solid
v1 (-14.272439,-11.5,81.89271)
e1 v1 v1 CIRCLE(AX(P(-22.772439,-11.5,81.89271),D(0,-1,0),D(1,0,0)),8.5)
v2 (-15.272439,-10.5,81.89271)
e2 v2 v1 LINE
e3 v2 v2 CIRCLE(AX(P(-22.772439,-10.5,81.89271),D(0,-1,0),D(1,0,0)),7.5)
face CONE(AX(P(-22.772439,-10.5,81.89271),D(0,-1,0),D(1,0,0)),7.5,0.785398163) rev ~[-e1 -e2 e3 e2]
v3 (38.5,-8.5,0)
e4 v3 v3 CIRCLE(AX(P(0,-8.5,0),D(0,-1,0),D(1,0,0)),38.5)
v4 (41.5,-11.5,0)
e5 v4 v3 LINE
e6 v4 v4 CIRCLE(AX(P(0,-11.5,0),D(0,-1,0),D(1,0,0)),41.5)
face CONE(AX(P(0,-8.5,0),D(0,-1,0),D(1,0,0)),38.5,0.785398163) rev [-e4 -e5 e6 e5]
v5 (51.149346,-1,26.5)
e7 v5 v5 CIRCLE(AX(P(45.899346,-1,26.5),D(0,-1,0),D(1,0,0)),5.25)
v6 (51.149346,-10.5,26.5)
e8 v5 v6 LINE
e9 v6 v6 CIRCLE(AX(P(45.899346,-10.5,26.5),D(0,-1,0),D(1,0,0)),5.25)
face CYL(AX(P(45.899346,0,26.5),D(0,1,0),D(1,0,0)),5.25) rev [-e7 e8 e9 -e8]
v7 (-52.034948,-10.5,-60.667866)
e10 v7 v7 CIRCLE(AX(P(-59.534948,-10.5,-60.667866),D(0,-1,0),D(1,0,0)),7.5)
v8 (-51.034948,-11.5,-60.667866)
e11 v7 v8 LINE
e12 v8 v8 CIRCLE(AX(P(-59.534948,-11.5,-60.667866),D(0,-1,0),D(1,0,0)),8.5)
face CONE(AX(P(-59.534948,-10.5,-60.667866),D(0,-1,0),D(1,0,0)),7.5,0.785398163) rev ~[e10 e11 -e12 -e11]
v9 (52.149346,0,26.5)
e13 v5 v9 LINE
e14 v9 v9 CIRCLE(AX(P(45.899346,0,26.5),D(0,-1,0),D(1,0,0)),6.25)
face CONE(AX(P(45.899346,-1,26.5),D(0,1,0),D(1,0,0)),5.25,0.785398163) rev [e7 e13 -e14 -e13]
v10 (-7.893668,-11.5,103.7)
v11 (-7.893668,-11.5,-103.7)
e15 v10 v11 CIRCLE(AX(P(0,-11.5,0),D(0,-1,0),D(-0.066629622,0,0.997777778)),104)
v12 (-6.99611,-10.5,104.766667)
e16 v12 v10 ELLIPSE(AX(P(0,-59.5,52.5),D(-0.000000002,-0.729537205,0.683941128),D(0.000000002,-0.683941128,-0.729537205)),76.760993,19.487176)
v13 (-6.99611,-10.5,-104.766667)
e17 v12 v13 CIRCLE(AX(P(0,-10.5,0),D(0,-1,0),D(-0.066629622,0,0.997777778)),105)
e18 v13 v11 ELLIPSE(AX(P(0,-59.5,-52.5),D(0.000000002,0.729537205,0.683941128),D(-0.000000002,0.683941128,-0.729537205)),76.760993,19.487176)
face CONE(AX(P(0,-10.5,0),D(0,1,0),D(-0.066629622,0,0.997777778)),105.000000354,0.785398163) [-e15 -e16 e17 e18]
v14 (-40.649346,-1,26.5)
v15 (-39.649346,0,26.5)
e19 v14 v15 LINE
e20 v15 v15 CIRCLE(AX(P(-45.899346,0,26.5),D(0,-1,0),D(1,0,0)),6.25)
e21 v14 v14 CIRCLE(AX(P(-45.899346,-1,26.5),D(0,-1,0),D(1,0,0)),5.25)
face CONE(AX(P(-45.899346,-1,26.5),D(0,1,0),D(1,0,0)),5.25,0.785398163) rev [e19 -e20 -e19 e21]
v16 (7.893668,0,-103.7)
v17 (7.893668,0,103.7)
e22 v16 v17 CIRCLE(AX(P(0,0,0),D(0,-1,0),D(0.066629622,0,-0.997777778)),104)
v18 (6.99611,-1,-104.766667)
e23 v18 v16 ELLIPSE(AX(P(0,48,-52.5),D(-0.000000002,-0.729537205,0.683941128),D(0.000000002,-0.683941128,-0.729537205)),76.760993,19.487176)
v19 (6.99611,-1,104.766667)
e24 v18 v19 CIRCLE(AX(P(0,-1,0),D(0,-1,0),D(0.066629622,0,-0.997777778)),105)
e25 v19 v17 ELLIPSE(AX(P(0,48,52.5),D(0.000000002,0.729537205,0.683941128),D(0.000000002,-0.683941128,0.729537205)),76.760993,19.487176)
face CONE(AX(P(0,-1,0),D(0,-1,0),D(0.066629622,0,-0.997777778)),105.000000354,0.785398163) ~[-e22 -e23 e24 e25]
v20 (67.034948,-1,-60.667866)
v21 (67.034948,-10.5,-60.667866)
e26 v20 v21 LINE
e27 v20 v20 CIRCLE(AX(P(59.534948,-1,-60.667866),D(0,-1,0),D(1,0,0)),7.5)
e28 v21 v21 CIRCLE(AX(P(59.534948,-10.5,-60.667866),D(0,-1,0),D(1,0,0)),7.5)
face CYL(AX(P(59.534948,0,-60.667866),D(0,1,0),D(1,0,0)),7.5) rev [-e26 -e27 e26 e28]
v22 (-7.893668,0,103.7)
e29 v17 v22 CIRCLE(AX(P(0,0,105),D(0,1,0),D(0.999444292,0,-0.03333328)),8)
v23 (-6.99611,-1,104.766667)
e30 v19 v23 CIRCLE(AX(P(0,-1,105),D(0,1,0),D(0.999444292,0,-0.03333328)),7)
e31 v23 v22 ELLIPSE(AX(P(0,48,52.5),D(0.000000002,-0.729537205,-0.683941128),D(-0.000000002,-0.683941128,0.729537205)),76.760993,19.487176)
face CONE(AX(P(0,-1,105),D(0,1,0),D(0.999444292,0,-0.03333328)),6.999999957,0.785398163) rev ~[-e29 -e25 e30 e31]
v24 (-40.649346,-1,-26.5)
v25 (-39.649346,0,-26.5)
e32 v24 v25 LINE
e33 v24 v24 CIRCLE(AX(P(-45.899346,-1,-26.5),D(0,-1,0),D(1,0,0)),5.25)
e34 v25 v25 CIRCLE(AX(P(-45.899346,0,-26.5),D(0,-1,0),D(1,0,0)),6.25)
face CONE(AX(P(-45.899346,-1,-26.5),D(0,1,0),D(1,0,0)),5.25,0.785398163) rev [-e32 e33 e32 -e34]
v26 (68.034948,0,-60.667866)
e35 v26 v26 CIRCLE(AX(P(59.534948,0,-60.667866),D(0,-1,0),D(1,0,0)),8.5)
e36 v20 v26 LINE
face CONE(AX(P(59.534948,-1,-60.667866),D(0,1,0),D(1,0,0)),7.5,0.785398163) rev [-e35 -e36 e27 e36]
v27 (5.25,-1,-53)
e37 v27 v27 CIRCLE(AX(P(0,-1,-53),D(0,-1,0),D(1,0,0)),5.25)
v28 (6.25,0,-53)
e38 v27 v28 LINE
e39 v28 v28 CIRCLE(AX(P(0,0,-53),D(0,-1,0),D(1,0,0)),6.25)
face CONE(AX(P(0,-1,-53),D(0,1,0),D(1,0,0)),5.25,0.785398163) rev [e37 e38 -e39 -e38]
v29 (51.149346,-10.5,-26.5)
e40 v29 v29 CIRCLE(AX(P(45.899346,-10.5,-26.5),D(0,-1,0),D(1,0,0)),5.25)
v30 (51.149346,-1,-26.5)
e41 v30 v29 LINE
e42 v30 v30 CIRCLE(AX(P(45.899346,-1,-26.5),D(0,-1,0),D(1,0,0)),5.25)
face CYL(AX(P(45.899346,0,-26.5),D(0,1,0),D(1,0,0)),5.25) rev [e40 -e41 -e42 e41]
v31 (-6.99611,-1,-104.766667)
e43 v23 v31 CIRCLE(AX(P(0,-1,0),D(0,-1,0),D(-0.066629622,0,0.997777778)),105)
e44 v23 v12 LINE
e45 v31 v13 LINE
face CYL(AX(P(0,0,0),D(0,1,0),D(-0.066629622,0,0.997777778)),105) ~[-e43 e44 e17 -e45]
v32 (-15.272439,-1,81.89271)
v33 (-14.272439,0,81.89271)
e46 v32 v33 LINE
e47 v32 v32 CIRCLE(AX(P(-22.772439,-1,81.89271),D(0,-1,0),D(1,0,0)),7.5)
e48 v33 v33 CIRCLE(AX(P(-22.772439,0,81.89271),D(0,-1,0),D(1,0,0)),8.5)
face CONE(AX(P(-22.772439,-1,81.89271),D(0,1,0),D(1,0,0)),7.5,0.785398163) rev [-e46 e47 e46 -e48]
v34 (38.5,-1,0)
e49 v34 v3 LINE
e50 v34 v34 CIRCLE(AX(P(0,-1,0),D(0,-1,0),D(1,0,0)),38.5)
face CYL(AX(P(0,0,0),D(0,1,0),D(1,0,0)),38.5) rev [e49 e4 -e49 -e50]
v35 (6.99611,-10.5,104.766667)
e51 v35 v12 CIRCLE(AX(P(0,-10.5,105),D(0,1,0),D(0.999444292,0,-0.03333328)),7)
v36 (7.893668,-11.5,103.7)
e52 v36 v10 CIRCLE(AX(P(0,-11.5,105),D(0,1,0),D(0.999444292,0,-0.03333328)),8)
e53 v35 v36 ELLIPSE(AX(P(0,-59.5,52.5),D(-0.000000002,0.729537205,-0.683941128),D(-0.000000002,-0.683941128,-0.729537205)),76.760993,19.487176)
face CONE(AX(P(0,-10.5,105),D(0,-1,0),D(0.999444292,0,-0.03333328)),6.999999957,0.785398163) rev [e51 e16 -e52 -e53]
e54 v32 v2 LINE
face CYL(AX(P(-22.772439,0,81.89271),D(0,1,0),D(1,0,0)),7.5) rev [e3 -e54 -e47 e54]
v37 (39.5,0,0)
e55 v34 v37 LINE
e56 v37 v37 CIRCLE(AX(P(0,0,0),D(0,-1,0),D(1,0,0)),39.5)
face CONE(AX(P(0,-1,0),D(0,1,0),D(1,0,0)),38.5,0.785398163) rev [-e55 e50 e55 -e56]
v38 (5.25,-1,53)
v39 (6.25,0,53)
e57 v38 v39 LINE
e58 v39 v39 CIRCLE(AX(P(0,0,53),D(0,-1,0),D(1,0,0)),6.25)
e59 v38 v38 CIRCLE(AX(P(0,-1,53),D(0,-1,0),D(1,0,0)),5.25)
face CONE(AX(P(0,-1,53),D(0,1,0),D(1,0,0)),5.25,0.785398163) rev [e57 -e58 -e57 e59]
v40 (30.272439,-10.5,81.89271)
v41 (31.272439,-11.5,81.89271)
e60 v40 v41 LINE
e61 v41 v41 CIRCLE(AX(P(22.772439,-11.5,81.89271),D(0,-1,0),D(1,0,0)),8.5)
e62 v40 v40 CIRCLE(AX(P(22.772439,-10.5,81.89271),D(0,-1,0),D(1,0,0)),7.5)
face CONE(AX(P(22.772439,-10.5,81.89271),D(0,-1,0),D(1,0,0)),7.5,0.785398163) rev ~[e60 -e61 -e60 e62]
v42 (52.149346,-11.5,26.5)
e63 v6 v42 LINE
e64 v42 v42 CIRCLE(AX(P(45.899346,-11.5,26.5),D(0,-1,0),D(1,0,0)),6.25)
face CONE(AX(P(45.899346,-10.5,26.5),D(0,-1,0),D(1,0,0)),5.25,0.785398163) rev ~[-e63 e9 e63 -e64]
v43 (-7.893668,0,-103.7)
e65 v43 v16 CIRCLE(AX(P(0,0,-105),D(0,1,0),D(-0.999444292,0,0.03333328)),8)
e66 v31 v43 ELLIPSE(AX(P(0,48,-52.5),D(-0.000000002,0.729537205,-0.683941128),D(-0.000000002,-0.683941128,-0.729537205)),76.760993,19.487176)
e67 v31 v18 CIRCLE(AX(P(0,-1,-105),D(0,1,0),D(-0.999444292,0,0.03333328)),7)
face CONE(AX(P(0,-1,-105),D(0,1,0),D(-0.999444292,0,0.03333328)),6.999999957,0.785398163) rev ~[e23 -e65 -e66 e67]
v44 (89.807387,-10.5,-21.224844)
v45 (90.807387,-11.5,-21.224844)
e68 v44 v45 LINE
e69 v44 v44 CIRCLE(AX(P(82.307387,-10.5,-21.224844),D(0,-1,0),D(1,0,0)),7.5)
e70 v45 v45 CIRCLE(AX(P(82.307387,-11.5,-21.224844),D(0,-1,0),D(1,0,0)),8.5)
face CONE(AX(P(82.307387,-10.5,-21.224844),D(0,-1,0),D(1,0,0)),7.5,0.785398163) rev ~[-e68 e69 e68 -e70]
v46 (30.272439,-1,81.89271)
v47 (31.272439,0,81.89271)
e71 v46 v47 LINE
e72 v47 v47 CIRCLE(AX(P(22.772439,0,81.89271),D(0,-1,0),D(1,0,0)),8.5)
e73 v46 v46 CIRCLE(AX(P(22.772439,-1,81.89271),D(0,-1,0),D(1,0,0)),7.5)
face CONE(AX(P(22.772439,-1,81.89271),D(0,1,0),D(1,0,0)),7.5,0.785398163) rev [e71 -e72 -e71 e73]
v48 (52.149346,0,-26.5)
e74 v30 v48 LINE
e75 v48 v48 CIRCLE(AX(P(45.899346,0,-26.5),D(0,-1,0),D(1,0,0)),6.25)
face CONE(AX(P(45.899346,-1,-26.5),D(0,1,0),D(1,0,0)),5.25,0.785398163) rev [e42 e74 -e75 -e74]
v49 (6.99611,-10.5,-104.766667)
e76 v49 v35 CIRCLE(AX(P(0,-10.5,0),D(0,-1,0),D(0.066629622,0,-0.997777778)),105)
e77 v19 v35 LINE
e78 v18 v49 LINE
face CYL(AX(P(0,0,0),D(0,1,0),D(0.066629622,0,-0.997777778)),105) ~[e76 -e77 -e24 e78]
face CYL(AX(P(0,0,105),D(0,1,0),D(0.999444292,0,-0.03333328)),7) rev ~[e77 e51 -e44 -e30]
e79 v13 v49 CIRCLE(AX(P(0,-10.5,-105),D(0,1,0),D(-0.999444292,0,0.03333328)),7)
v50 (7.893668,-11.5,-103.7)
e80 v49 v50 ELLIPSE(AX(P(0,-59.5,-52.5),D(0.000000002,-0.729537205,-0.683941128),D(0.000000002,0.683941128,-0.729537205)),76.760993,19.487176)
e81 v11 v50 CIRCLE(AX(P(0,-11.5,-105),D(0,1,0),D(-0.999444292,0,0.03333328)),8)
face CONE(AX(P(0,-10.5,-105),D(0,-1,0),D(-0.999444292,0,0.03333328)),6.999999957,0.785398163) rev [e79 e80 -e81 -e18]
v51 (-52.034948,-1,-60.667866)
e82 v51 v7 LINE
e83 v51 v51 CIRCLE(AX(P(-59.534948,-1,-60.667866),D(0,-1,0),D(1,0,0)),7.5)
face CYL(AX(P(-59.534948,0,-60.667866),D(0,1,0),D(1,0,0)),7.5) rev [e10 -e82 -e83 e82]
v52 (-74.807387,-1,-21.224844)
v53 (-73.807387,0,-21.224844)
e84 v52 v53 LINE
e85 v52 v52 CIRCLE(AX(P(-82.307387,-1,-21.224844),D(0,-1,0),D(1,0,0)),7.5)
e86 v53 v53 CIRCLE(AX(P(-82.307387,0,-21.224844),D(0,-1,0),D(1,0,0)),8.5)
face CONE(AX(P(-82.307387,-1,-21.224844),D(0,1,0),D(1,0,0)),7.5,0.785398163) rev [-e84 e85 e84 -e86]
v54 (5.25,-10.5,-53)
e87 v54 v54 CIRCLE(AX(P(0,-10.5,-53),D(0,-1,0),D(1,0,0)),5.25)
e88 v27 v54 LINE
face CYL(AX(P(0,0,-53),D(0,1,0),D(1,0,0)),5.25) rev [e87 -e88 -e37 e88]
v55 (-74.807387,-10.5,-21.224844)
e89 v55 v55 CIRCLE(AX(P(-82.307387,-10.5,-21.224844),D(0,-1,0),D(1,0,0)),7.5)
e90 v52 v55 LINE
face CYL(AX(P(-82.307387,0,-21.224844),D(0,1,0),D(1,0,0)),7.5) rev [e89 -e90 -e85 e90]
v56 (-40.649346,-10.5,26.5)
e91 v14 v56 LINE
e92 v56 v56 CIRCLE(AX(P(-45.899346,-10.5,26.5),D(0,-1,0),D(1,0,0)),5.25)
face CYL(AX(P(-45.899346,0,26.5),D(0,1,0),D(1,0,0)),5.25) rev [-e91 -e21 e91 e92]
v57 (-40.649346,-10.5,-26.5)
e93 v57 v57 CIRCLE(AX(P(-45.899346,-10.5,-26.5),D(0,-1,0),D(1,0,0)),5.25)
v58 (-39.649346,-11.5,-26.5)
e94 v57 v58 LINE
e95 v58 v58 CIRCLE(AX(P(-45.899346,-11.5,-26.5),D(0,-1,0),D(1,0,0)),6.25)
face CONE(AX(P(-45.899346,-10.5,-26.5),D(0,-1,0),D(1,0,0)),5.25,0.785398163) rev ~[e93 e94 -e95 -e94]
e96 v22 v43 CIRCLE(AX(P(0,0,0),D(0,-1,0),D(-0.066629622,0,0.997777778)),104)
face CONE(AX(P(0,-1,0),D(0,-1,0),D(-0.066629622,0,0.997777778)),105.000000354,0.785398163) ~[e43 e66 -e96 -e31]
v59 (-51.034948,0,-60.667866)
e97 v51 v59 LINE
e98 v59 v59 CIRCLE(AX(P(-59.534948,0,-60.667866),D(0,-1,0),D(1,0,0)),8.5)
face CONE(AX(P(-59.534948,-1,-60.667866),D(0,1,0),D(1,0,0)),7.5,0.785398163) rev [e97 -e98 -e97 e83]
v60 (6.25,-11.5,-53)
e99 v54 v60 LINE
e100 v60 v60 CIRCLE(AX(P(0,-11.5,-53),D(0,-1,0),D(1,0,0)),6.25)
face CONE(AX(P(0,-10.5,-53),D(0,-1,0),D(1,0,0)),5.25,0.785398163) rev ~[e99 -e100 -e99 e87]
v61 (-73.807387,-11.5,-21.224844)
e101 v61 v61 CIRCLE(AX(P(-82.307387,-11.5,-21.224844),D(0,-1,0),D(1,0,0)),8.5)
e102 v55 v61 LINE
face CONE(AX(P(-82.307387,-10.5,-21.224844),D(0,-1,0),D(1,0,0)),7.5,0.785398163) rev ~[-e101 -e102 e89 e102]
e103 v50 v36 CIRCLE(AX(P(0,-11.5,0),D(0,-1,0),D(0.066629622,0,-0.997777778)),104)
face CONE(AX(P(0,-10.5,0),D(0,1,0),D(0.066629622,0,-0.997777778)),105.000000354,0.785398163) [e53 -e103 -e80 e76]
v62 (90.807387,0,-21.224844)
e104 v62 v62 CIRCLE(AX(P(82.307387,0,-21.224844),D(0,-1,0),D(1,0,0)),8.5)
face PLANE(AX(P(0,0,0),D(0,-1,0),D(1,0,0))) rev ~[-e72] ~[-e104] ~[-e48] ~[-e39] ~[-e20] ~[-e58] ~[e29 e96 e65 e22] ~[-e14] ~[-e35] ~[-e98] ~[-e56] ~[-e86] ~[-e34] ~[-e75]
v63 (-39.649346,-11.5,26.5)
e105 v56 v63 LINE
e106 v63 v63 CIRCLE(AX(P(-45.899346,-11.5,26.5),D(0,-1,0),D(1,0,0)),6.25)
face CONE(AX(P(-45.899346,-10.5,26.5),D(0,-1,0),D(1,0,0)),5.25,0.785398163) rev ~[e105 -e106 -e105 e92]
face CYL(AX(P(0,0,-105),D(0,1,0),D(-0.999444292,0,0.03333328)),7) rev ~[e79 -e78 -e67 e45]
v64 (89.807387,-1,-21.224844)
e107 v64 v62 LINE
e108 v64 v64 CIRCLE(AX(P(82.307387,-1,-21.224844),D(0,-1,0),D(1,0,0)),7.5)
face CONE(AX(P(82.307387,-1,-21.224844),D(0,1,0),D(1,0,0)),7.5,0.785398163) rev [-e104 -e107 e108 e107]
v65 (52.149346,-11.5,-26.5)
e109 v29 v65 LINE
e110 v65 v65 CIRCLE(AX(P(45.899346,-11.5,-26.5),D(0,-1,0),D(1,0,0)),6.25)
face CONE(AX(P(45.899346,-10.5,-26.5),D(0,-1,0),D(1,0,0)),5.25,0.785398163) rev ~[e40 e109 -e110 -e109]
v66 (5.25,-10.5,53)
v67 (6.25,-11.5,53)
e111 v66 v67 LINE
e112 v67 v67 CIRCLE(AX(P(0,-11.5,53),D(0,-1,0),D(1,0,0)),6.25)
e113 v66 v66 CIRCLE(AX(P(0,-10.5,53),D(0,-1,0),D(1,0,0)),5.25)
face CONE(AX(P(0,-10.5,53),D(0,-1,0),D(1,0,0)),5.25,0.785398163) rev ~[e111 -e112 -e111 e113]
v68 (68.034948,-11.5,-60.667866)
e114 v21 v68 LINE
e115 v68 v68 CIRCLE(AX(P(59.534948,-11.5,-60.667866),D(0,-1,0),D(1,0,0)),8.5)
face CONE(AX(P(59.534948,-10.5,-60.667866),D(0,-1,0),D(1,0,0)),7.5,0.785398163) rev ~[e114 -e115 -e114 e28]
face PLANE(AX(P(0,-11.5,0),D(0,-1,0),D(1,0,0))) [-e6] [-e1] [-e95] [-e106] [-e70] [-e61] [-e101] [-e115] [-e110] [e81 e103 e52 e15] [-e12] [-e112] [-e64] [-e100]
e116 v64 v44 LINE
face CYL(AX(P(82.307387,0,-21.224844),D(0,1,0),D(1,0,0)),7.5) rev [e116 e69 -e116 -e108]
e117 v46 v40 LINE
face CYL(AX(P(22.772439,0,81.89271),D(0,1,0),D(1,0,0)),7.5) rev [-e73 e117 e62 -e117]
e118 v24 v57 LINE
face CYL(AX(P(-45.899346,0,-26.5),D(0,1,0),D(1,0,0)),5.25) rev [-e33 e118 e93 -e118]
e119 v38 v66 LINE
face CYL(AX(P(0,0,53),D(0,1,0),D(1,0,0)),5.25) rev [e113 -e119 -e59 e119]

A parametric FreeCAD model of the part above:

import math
import FreeCAD as App
import Part
import Sketcher

V = App.Vector
Q = App.Units.Quantity


def edges_at(feature, points):
    """Names of the edges that pass closest to the given points."""
    edges = feature.Shape.Edges
    near = lambda p: min(range(len(edges)), key=lambda i: edges[i].distToShape(Part.Vertex(*p))[0])
    return sorted({f"Edge{near(p) + 1}" for p in points})

doc = App.newDocument("Part")
body = doc.addObject("PartDesign::Body", "Body")

# Sketch on XZ plane
sketch1 = doc.addObject("Sketcher::SketchObject", "Sketch")
body.addObject(sketch1)
sketch1.AttachmentSupport = (doc.XZ_Plane, [""])
sketch1.MapMode = "FlatFace"
sketch1.addGeometry([
    Part.ArcOfCircle(Part.Circle(V(0, 105, 0), V(0, 0, 1), 7), math.radians(-178.08979), math.radians(-1.91021)),  # 0
    Part.ArcOfCircle(Part.Circle(V(0, 0, 0), V(0, 0, 1), 105), math.radians(93.820427), math.radians(266.179573)),  # 1
    Part.ArcOfCircle(Part.Circle(V(0, -105, 0), V(0, 0, 1), 7), math.radians(1.91021), math.radians(178.08979)),  # 2
    Part.ArcOfCircle(Part.Circle(V(0, 0, 0), V(0, 0, 1), 105), math.radians(-86.179573), math.radians(86.179573)),  # 3
    Part.Circle(V(-59.534948, -60.667866, 0), V(0, 0, 1), 7.5),  # 4
    Part.Circle(V(-82.307387, -21.224844, 0), V(0, 0, 1), 7.5),  # 5
    Part.Circle(V(-45.899346, -26.5, 0), V(0, 0, 1), 5.25),  # 6
    Part.Circle(V(0, -53, 0), V(0, 0, 1), 5.25),  # 7
    Part.Circle(V(59.534948, -60.667866, 0), V(0, 0, 1), 7.5),  # 8
    Part.Circle(V(0, 0, 0), V(0, 0, 1), 38.5),  # 9
    Part.Circle(V(45.899346, -26.5, 0), V(0, 0, 1), 5.25),  # 10
    Part.Circle(V(82.307387, -21.224844, 0), V(0, 0, 1), 7.5),  # 11
    Part.Circle(V(-45.899346, 26.5, 0), V(0, 0, 1), 5.25),  # 12
    Part.Circle(V(-22.772439, 81.89271, 0), V(0, 0, 1), 7.5),  # 13
    Part.Circle(V(45.899346, 26.5, 0), V(0, 0, 1), 5.25),  # 14
    Part.Circle(V(0, 53, 0), V(0, 0, 1), 5.25),  # 15
    Part.Circle(V(22.772439, 81.89271, 0), V(0, 0, 1), 7.5),  # 16
], False)
sketch1.addConstraint([
    Sketcher.Constraint("Coincident", 0, 1, 1, 1),
    Sketcher.Constraint("Coincident", 1, 2, 2, 2),
    Sketcher.Constraint("Coincident", 2, 1, 3, 1),
    Sketcher.Constraint("Coincident", 3, 2, 0, 2),
    Sketcher.Constraint("Coincident", 1, 3, -1, 1),
    Sketcher.Constraint("Coincident", 3, 3, -1, 1),
    Sketcher.Constraint("Coincident", 9, 3, -1, 1),
    Sketcher.Constraint("Equal", 0, 2),
    Sketcher.Constraint("Equal", 1, 3),
    Sketcher.Constraint("Equal", 4, 5),
    Sketcher.Constraint("Equal", 6, 7),
    Sketcher.Constraint("Equal", 5, 8),
    Sketcher.Constraint("Equal", 7, 10),
    Sketcher.Constraint("Equal", 8, 11),
    Sketcher.Constraint("Equal", 10, 12),
    Sketcher.Constraint("Equal", 11, 13),
    Sketcher.Constraint("Equal", 12, 14),
    Sketcher.Constraint("Equal", 14, 15),
    Sketcher.Constraint("Equal", 13, 16),
    Sketcher.Constraint("Symmetric", 0, 3, 2, 3, -1, 1),
    Sketcher.Constraint("Symmetric", 10, 3, 12, 3, -1, 1),
    Sketcher.Constraint("Symmetric", 6, 3, 14, 3, -1, 1),
    Sketcher.Constraint("Symmetric", 7, 3, 15, 3, -1, 1),
    Sketcher.Constraint("Symmetric", 4, 3, 8, 3, -2),
    Sketcher.Constraint("Symmetric", 6, 3, 10, 3, -2),
    Sketcher.Constraint("Symmetric", 5, 3, 11, 3, -2),
    Sketcher.Constraint("Symmetric", 13, 3, 16, 3, -2),
    Sketcher.Constraint("PointOnObject", 0, 3, -2),
    Sketcher.Constraint("PointOnObject", 7, 3, -2),
    Sketcher.Constraint("Diameter", 4, Q("15 mm")),
    Sketcher.Constraint("Diameter", 9, Q("77 mm")),
    Sketcher.Constraint("Radius", 0, Q("7 mm")),
    Sketcher.Constraint("Radius", 1, Q("105 mm")),
    Sketcher.Constraint("Diameter", 6, Q("10.5 mm")),
    Sketcher.Constraint("DistanceY", -1, 1, 0, 3, Q("105 mm")),
    Sketcher.Constraint("DistanceY", 7, 3, -1, 1, Q("53 mm")),
    Sketcher.Constraint("DistanceY", 6, 3, 12, 3, Q("53 mm")),
    Sketcher.Constraint("DistanceX", 4, 3, 6, 3, Q("13.635602 mm")),
    Sketcher.Constraint("DistanceY", 1, 2, 4, 3, Q("44.098801 mm")),
    Sketcher.Constraint("DistanceX", 13, 3, -1, 1, Q("22.772439 mm")),
    Sketcher.Constraint("DistanceY", -1, 1, 13, 3, Q("81.89271 mm")),
    Sketcher.Constraint("DistanceX", 4, 3, 1, 3, Q("59.534948 mm")),
    Sketcher.Constraint("DistanceX", 5, 3, 4, 3, Q("22.772439 mm")),
    Sketcher.Constraint("DistanceY", 5, 3, -1, 1, Q("21.224844 mm")),
])
pad1 = doc.addObject("PartDesign::Pad", "Pad")
body.addObject(pad1)
pad1.Profile = sketch1
pad1.Length = 11.5
doc.recompute()

chamfer = doc.addObject("PartDesign::Chamfer", "Chamfer")
body.addObject(chamfer)
chamfer.Base = (pad1, edges_at(pad1, [
    (0, -11.5, 98),
    (105, -11.5, 0),
    (-105, -11.5, 0),
    (-30.272, -11.5, 81.893),
    (15.272, -11.5, 81.893),
    (-5.25, -11.5, 53),
    (40.649, -11.5, 26.5),
    (40.649, -11.5, -26.5),
    (74.807, -11.5, -21.225),
    (52.035, -11.5, -60.668),
    (-5.25, -11.5, -53),
    (-67.035, -11.5, -60.668),
    (-89.807, -11.5, -21.225),
    (-51.149, -11.5, -26.5),
    (-51.149, -11.5, 26.5),
    (0, -11.5, -98),
]))
chamfer.ChamferType = "Two distances"
chamfer.Size = 1
chamfer.Size2 = 1
doc.recompute()

chamfer2 = doc.addObject("PartDesign::Chamfer", "Chamfer001")
body.addObject(chamfer2)
chamfer2.Base = (chamfer, edges_at(chamfer, [(-38.5, -11.5, 0)]))
chamfer2.ChamferType = "Two distances"
chamfer2.Size = 3
chamfer2.Size2 = 3
doc.recompute()

chamfer3 = doc.addObject("PartDesign::Chamfer", "Chamfer002")
body.addObject(chamfer3)
chamfer3.Base = (chamfer2, edges_at(chamfer2, [
    (105, 0, 0),
    (-105, 0, 0),
    (0, 0, 98),
    (15.272, 0, 81.893),
    (-30.272, 0, 81.893),
    (-51.149, 0, 26.5),
    (74.807, 0, -21.225),
    (40.649, 0, 26.5),
    (40.649, 0, -26.5),
    (-5.25, 0, -53),
    (-51.149, 0, -26.5),
    (-89.807, 0, -21.225),
    (0, 0, -98),
    (-67.035, 0, -60.668),
    (52.035, 0, -60.668),
    (-5.25, 0, 53),
    (-38.5, 0, 0),
]))
chamfer3.ChamferType = "Two distances"
chamfer3.Size = 1
chamfer3.Size2 = 1

doc.recompute()
